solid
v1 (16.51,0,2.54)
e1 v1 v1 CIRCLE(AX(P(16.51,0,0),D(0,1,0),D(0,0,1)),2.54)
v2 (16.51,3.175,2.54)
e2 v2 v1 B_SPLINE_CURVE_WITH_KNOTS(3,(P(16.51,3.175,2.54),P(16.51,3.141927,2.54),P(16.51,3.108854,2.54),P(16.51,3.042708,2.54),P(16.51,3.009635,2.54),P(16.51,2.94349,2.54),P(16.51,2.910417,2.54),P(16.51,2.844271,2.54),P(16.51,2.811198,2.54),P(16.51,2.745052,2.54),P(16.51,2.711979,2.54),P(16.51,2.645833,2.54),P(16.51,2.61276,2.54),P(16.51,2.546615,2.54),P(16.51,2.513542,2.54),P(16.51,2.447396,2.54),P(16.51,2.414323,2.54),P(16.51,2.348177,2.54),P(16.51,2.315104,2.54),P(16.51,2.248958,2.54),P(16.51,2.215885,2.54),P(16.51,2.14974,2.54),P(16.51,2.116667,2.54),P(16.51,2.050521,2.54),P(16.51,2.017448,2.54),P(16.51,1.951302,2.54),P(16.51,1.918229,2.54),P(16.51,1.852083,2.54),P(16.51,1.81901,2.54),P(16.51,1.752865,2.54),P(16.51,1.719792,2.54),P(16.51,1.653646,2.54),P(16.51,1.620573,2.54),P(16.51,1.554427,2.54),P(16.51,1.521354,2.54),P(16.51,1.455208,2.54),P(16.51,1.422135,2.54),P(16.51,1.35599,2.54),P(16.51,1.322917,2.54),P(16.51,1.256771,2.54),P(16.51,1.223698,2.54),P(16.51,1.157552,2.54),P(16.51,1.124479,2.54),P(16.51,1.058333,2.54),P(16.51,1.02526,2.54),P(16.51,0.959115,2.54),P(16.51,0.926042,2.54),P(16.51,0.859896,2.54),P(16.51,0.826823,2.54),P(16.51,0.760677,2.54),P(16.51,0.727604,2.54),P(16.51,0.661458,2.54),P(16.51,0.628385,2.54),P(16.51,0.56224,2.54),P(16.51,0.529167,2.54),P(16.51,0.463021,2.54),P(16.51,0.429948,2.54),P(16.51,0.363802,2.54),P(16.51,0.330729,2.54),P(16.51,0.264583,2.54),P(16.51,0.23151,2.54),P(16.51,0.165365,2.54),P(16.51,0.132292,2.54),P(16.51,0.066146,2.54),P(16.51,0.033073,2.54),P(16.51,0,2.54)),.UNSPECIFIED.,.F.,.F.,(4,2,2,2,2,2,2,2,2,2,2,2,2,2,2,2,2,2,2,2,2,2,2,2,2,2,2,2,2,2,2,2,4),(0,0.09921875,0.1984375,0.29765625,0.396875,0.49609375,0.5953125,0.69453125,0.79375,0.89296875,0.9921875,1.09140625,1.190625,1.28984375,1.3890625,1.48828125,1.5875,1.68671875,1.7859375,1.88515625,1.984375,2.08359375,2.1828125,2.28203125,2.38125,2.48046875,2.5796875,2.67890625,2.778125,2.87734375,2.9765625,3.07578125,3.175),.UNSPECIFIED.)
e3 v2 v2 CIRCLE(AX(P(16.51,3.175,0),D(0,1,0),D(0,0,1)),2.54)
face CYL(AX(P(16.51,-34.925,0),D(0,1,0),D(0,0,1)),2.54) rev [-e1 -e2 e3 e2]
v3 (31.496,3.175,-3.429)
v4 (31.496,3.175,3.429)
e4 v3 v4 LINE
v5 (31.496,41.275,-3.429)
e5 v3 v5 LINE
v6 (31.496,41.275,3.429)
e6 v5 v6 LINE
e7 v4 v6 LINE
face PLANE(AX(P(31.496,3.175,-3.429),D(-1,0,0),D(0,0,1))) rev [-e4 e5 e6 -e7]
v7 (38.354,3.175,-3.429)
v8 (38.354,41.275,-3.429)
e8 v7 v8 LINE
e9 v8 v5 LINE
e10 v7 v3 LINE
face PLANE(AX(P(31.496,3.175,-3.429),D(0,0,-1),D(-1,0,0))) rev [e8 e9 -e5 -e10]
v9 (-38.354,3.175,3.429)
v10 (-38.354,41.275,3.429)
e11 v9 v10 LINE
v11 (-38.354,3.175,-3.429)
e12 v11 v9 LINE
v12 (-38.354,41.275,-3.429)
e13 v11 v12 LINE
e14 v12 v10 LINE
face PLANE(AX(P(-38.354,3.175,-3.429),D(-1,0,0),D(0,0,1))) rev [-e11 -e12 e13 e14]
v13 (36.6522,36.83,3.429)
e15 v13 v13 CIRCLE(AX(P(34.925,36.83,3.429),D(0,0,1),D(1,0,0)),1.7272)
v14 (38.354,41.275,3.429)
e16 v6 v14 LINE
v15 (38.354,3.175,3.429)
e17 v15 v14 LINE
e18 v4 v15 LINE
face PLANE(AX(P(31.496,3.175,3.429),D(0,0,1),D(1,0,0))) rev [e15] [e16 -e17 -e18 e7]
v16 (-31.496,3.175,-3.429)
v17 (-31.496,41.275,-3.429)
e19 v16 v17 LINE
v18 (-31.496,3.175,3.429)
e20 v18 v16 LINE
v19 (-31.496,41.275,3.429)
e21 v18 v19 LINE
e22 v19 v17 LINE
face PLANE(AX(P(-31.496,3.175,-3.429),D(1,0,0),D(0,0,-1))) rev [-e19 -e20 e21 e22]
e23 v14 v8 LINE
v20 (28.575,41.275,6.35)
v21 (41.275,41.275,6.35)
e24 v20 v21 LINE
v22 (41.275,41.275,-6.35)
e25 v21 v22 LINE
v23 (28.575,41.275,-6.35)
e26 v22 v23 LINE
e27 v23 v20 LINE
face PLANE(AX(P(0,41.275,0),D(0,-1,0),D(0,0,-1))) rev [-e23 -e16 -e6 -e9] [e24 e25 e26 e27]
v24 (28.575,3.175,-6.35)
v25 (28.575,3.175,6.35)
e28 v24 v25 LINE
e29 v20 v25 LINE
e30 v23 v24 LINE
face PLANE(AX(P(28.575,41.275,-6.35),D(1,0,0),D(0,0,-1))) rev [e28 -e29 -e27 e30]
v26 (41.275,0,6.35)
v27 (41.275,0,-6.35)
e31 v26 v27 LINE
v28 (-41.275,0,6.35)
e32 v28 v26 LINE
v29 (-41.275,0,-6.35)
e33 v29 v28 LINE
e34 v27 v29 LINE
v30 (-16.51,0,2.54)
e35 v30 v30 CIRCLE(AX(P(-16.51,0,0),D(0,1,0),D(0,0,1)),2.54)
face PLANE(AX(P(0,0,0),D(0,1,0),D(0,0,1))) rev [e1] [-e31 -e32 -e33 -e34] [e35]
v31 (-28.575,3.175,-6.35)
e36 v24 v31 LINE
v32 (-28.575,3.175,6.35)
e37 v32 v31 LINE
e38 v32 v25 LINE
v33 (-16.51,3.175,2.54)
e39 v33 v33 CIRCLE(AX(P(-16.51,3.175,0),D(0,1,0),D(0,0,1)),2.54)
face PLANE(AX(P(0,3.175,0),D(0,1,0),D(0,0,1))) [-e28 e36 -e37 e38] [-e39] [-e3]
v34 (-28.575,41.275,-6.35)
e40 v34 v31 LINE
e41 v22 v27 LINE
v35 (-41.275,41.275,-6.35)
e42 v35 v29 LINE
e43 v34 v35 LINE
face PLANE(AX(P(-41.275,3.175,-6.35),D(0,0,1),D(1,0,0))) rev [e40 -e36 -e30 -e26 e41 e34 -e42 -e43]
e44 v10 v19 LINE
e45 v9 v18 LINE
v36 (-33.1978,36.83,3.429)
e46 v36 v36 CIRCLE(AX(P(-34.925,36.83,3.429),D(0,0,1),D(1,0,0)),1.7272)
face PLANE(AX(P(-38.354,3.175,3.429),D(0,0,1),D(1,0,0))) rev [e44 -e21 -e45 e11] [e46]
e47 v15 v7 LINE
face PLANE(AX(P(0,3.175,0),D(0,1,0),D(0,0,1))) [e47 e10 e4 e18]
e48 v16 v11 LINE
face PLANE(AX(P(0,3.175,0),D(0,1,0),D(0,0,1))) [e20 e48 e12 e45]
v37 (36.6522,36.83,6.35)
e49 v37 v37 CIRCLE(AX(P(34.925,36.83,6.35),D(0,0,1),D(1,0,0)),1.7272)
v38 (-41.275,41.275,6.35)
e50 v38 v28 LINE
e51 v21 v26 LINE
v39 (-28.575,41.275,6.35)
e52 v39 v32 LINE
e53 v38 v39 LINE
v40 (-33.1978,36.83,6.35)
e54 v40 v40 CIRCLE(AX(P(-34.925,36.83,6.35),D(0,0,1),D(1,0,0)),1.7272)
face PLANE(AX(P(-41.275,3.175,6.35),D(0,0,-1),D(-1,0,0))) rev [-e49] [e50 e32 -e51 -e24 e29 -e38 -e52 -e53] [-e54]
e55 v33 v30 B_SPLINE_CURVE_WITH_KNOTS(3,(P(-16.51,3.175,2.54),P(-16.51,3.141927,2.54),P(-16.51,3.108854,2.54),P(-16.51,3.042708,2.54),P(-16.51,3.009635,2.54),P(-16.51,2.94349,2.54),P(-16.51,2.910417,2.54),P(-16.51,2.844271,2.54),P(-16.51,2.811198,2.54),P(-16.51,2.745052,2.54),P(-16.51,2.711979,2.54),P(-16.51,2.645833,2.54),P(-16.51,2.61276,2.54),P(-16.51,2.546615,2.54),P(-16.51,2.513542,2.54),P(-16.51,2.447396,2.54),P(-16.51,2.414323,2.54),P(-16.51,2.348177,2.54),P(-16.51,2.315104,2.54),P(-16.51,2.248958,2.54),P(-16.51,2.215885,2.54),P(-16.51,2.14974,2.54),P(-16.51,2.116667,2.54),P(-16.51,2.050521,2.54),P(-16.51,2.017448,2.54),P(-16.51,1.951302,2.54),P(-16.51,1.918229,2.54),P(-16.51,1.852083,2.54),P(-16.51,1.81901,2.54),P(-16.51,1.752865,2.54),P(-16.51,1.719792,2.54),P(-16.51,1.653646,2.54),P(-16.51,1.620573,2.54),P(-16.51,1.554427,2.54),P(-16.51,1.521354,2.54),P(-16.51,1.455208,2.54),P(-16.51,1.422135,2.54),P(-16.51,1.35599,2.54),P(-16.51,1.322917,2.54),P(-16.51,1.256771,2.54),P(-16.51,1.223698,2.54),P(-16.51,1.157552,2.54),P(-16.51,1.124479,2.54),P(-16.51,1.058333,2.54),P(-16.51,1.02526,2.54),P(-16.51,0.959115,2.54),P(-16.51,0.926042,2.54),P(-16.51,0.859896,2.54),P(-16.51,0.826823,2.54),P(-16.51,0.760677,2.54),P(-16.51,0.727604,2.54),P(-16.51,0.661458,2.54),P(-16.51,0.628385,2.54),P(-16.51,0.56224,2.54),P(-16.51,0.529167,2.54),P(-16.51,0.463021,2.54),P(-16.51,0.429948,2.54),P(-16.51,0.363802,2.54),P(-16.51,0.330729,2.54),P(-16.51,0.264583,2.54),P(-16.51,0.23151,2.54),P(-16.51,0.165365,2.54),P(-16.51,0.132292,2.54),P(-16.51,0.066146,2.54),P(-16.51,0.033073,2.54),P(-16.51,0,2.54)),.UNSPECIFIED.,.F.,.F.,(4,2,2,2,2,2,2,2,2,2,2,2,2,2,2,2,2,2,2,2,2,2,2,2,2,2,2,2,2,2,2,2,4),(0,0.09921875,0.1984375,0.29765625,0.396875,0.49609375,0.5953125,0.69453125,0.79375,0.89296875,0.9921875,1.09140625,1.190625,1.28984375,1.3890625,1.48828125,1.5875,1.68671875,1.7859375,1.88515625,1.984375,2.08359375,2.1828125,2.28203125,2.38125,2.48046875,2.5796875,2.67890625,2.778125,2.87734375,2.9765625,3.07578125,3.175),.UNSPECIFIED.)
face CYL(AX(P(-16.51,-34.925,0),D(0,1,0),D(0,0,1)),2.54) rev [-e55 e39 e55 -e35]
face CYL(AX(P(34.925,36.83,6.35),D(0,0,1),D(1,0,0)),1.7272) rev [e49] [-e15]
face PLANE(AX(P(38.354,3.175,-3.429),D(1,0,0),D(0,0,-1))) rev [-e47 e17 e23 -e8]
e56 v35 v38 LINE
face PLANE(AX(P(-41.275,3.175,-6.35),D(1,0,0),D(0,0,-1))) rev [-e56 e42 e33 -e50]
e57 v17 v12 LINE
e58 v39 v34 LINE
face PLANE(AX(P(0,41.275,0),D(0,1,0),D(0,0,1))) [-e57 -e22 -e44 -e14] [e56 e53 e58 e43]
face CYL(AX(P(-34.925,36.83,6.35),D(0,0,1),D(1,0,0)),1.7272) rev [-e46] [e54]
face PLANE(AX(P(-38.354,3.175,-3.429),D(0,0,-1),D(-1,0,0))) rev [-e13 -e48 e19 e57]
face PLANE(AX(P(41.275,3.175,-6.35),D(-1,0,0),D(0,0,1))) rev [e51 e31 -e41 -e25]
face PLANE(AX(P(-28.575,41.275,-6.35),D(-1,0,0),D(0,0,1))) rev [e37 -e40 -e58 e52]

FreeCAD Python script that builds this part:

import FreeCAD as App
import Part
import Sketcher
from FreeCAD import Vector
Q = App.Units.Quantity

doc = App.newDocument("Part")
body = doc.addObject("PartDesign::Body", "Body")

# Sketch on XZ plane
sketch1 = body.newObject("Sketcher::SketchObject", "Sketch")
sketch1.AttachmentSupport = (doc.getObject("XZ_Plane"), [""])
sketch1.MapMode = "FlatFace"
sketch1.addGeometry([
    Part.LineSegment(Vector(-41, -6, 0), Vector(-41, 6, 0)),
    Part.LineSegment(Vector(-41, 6, 0), Vector(41, 6, 0)),
    Part.LineSegment(Vector(41, 6, 0), Vector(41, -6, 0)),
    Part.LineSegment(Vector(41, -6, 0), Vector(-41, -6, 0)),
], False)
sketch1.addConstraint([
    Sketcher.Constraint("Coincident", 0, 2, 1, 1),
    Sketcher.Constraint("Coincident", 1, 2, 2, 1),
    Sketcher.Constraint("Coincident", 2, 2, 3, 1),
    Sketcher.Constraint("Coincident", 3, 2, 0, 1),
    Sketcher.Constraint("Vertical", 0),
    Sketcher.Constraint("Horizontal", 1),
    Sketcher.Constraint("Vertical", 2),
    Sketcher.Constraint("Horizontal", 3),
    Sketcher.Constraint("Symmetric", 0, 2, 2, 2, -1, 1),
    Sketcher.Constraint("DistanceY", 0, 1, 0, 2, Q("0.5 in")),
    Sketcher.Constraint("DistanceX", 1, 1, 1, 2, Q("3.25 in")),
])
pad1 = body.newObject("PartDesign::Pad", "Pad")
pad1.Profile = sketch1
pad1.Length = Q("0.125 in")
pad1.Reversed = True

# Sketch on XZ plane
sketch2 = body.newObject("Sketcher::SketchObject", "Sketch001")
sketch2.AttachmentSupport = (doc.getObject("XZ_Plane"), [""])
sketch2.MapMode = "FlatFace"
sketch2.AttachmentOffset = App.Placement(Vector(0, 0, -0.125 * 25.4), App.Rotation())
sketch2.addGeometry([
    Part.LineSegment(Vector(-41, -6, 0), Vector(-41, 6, 0)),
    Part.LineSegment(Vector(-41, 6, 0), Vector(-29, 6, 0)),
    Part.LineSegment(Vector(-29, 6, 0), Vector(-29, -6, 0)),
    Part.LineSegment(Vector(-29, -6, 0), Vector(-41, -6, 0)),
], False)
sketch2.addConstraint([
    Sketcher.Constraint("Coincident", 0, 2, 1, 1),
    Sketcher.Constraint("Coincident", 1, 2, 2, 1),
    Sketcher.Constraint("Coincident", 2, 2, 3, 1),
    Sketcher.Constraint("Coincident", 3, 2, 0, 1),
    Sketcher.Constraint("Vertical", 0),
    Sketcher.Constraint("Horizontal", 1),
    Sketcher.Constraint("Vertical", 2),
    Sketcher.Constraint("Horizontal", 3),
    Sketcher.Constraint("Equal", 3, 0),
    Sketcher.Constraint("DistanceX", 1, 1, 1, 2, Q("0.5 in")),
    Sketcher.Constraint("DistanceY", -1, 1, 0, 2, Q("0.25 in")),
    Sketcher.Constraint("DistanceX", 0, 2, -1, 1, Q("1.625 in")),
])
pad2 = body.newObject("PartDesign::Pad", "Pad001")
pad2.Profile = sketch2
pad2.Length = Q("1.5 in")
pad2.Reversed = True

# Sketch on XZ plane
sketch3 = body.newObject("Sketcher::SketchObject", "Sketch002")
sketch3.AttachmentSupport = (doc.getObject("XZ_Plane"), [""])
sketch3.MapMode = "FlatFace"
sketch3.AttachmentOffset = App.Placement(Vector(0, 0, -0.125 * 25.4), App.Rotation())
sketch3.addGeometry([
    Part.LineSegment(Vector(29, -6, 0), Vector(29, 6, 0)),
    Part.LineSegment(Vector(29, 6, 0), Vector(41, 6, 0)),
    Part.LineSegment(Vector(41, 6, 0), Vector(41, -6, 0)),
    Part.LineSegment(Vector(41, -6, 0), Vector(29, -6, 0)),
], False)
sketch3.addConstraint([
    Sketcher.Constraint("Coincident", 0, 2, 1, 1),
    Sketcher.Constraint("Coincident", 1, 2, 2, 1),
    Sketcher.Constraint("Coincident", 2, 2, 3, 1),
    Sketcher.Constraint("Coincident", 3, 2, 0, 1),
    Sketcher.Constraint("Vertical", 0),
    Sketcher.Constraint("Horizontal", 1),
    Sketcher.Constraint("Vertical", 2),
    Sketcher.Constraint("Horizontal", 3),
    Sketcher.Constraint("Equal", 3, 0),
    Sketcher.Constraint("DistanceX", 1, 1, 1, 2, Q("0.5 in")),
    Sketcher.Constraint("DistanceY", -1, 1, 0, 2, Q("0.25 in")),
    Sketcher.Constraint("DistanceX", -1, 1, 0, 2, Q("1.125 in")),
])
pad3 = body.newObject("PartDesign::Pad", "Pad002")
pad3.Profile = sketch3
pad3.Length = Q("1.5 in")
pad3.Reversed = True

# Sketch on XZ plane
sketch4 = body.newObject("Sketcher::SketchObject", "Sketch003")
sketch4.AttachmentSupport = (doc.getObject("XZ_Plane"), [""])
sketch4.MapMode = "FlatFace"
sketch4.AttachmentOffset = App.Placement(Vector(0, 0, -1.625 * 25.4), App.Rotation())
sketch4.addGeometry([
    Part.LineSegment(Vector(-38, -3, 0), Vector(-38, 3, 0)),
    Part.LineSegment(Vector(-38, 3, 0), Vector(-31, 3, 0)),
    Part.LineSegment(Vector(-31, 3, 0), Vector(-31, -3, 0)),
    Part.LineSegment(Vector(-31, -3, 0), Vector(-38, -3, 0)),
], False)
sketch4.addConstraint([
    Sketcher.Constraint("Coincident", 0, 2, 1, 1),
    Sketcher.Constraint("Coincident", 1, 2, 2, 1),
    Sketcher.Constraint("Coincident", 2, 2, 3, 1),
    Sketcher.Constraint("Coincident", 3, 2, 0, 1),
    Sketcher.Constraint("Vertical", 0),
    Sketcher.Constraint("Horizontal", 1),
    Sketcher.Constraint("Vertical", 2),
    Sketcher.Constraint("Horizontal", 3),
    Sketcher.Constraint("Equal", 3, 0),
    Sketcher.Constraint("DistanceX", 1, 1, 1, 2, Q("0.27 in")),
    Sketcher.Constraint("DistanceX", 0, 2, -1, 1, Q("1.51 in")),
    Sketcher.Constraint("DistanceY", -1, 1, 0, 2, Q("0.135 in")),
])
pocket1 = body.newObject("PartDesign::Pocket", "Pocket")
pocket1.Profile = sketch4
pocket1.Length = Q("1.5 in")
pocket1.Reversed = True

# Sketch on XZ plane
sketch5 = body.newObject("Sketcher::SketchObject", "Sketch004")
sketch5.AttachmentSupport = (doc.getObject("XZ_Plane"), [""])
sketch5.MapMode = "FlatFace"
sketch5.AttachmentOffset = App.Placement(Vector(0, 0, -1.625 * 25.4), App.Rotation())
sketch5.addGeometry([
    Part.LineSegment(Vector(31, -3, 0), Vector(31, 3, 0)),
    Part.LineSegment(Vector(31, 3, 0), Vector(38, 3, 0)),
    Part.LineSegment(Vector(38, 3, 0), Vector(38, -3, 0)),
    Part.LineSegment(Vector(38, -3, 0), Vector(31, -3, 0)),
], False)
sketch5.addConstraint([
    Sketcher.Constraint("Coincident", 0, 2, 1, 1),
    Sketcher.Constraint("Coincident", 1, 2, 2, 1),
    Sketcher.Constraint("Coincident", 2, 2, 3, 1),
    Sketcher.Constraint("Coincident", 3, 2, 0, 1),
    Sketcher.Constraint("Vertical", 0),
    Sketcher.Constraint("Horizontal", 1),
    Sketcher.Constraint("Vertical", 2),
    Sketcher.Constraint("Horizontal", 3),
    Sketcher.Constraint("Equal", 3, 0),
    Sketcher.Constraint("DistanceX", 1, 1, 1, 2, Q("0.27 in")),
    Sketcher.Constraint("DistanceX", -1, 1, 0, 2, Q("1.24 in")),
    Sketcher.Constraint("DistanceY", -1, 1, 0, 2, Q("0.135 in")),
])
pocket2 = body.newObject("PartDesign::Pocket", "Pocket001")
pocket2.Profile = sketch5
pocket2.Length = Q("1.5 in")
pocket2.Reversed = True

# Sketch on XZ plane
sketch6 = body.newObject("Sketcher::SketchObject", "Sketch005")
sketch6.AttachmentSupport = (doc.getObject("XZ_Plane"), [""])
sketch6.MapMode = "FlatFace"
sketch6.AttachmentOffset = App.Placement(Vector(0, 0, -0.125 * 25.4), App.Rotation())
sketch6.addGeometry([
    Part.Circle(Vector(-16.5, 0, 0), Vector(0, 0, 1), 2.5),
    Part.Circle(Vector(16.5, 0, 0), Vector(0, 0, 1), 2.5),
], False)
sketch6.addConstraint([
    Sketcher.Constraint("Equal", 0, 1),
    Sketcher.Constraint("Symmetric", 0, 3, 1, 3, -1, 1),
    Sketcher.Constraint("PointOnObject", 0, 3, -1),
    Sketcher.Constraint("Diameter", 0, Q("0.2 in")),
    Sketcher.Constraint("DistanceX", 0, 3, 1, 3, Q("1.3 in")),
])
pocket3 = body.newObject("PartDesign::Pocket", "Pocket002")
pocket3.Profile = sketch6
pocket3.Length = Q("1.5 in")
pocket3.Reversed = True

# Sketch on XY plane
sketch7 = body.newObject("Sketcher::SketchObject", "Sketch006")
sketch7.AttachmentSupport = (doc.getObject("XY_Plane"), [""])
sketch7.MapMode = "FlatFace"
sketch7.AttachmentOffset = App.Placement(Vector(0, 0, 0.25 * 25.4), App.Rotation())
sketch7.addGeometry([
    Part.Circle(Vector(-34.9, 36.8, 0), Vector(0, 0, 1), 1.7),
    Part.Circle(Vector(34.9, 36.8, 0), Vector(0, 0, 1), 1.7),
], False)
sketch7.addConstraint([
    Sketcher.Constraint("Equal", 0, 1),
    Sketcher.Constraint("Symmetric", 0, 3, 1, 3, -2),
    Sketcher.Constraint("Diameter", 0, Q("0.136 in")),
    Sketcher.Constraint("DistanceY", -1, 1, 0, 3, Q("1.45 in")),
    Sketcher.Constraint("DistanceX", 0, 3, 1, 3, Q("2.75 in")),
])
doc.recompute()
hole = body.newObject("PartDesign::Hole", "Hole")
hole.Profile = sketch7
hole.ThreadType = "None"
hole.Diameter = Q("0.136 in")
hole.DepthType = "Dimension"
hole.Depth = Q("0.115 in")
hole.DrillPoint = "Flat"

doc.recompute()
